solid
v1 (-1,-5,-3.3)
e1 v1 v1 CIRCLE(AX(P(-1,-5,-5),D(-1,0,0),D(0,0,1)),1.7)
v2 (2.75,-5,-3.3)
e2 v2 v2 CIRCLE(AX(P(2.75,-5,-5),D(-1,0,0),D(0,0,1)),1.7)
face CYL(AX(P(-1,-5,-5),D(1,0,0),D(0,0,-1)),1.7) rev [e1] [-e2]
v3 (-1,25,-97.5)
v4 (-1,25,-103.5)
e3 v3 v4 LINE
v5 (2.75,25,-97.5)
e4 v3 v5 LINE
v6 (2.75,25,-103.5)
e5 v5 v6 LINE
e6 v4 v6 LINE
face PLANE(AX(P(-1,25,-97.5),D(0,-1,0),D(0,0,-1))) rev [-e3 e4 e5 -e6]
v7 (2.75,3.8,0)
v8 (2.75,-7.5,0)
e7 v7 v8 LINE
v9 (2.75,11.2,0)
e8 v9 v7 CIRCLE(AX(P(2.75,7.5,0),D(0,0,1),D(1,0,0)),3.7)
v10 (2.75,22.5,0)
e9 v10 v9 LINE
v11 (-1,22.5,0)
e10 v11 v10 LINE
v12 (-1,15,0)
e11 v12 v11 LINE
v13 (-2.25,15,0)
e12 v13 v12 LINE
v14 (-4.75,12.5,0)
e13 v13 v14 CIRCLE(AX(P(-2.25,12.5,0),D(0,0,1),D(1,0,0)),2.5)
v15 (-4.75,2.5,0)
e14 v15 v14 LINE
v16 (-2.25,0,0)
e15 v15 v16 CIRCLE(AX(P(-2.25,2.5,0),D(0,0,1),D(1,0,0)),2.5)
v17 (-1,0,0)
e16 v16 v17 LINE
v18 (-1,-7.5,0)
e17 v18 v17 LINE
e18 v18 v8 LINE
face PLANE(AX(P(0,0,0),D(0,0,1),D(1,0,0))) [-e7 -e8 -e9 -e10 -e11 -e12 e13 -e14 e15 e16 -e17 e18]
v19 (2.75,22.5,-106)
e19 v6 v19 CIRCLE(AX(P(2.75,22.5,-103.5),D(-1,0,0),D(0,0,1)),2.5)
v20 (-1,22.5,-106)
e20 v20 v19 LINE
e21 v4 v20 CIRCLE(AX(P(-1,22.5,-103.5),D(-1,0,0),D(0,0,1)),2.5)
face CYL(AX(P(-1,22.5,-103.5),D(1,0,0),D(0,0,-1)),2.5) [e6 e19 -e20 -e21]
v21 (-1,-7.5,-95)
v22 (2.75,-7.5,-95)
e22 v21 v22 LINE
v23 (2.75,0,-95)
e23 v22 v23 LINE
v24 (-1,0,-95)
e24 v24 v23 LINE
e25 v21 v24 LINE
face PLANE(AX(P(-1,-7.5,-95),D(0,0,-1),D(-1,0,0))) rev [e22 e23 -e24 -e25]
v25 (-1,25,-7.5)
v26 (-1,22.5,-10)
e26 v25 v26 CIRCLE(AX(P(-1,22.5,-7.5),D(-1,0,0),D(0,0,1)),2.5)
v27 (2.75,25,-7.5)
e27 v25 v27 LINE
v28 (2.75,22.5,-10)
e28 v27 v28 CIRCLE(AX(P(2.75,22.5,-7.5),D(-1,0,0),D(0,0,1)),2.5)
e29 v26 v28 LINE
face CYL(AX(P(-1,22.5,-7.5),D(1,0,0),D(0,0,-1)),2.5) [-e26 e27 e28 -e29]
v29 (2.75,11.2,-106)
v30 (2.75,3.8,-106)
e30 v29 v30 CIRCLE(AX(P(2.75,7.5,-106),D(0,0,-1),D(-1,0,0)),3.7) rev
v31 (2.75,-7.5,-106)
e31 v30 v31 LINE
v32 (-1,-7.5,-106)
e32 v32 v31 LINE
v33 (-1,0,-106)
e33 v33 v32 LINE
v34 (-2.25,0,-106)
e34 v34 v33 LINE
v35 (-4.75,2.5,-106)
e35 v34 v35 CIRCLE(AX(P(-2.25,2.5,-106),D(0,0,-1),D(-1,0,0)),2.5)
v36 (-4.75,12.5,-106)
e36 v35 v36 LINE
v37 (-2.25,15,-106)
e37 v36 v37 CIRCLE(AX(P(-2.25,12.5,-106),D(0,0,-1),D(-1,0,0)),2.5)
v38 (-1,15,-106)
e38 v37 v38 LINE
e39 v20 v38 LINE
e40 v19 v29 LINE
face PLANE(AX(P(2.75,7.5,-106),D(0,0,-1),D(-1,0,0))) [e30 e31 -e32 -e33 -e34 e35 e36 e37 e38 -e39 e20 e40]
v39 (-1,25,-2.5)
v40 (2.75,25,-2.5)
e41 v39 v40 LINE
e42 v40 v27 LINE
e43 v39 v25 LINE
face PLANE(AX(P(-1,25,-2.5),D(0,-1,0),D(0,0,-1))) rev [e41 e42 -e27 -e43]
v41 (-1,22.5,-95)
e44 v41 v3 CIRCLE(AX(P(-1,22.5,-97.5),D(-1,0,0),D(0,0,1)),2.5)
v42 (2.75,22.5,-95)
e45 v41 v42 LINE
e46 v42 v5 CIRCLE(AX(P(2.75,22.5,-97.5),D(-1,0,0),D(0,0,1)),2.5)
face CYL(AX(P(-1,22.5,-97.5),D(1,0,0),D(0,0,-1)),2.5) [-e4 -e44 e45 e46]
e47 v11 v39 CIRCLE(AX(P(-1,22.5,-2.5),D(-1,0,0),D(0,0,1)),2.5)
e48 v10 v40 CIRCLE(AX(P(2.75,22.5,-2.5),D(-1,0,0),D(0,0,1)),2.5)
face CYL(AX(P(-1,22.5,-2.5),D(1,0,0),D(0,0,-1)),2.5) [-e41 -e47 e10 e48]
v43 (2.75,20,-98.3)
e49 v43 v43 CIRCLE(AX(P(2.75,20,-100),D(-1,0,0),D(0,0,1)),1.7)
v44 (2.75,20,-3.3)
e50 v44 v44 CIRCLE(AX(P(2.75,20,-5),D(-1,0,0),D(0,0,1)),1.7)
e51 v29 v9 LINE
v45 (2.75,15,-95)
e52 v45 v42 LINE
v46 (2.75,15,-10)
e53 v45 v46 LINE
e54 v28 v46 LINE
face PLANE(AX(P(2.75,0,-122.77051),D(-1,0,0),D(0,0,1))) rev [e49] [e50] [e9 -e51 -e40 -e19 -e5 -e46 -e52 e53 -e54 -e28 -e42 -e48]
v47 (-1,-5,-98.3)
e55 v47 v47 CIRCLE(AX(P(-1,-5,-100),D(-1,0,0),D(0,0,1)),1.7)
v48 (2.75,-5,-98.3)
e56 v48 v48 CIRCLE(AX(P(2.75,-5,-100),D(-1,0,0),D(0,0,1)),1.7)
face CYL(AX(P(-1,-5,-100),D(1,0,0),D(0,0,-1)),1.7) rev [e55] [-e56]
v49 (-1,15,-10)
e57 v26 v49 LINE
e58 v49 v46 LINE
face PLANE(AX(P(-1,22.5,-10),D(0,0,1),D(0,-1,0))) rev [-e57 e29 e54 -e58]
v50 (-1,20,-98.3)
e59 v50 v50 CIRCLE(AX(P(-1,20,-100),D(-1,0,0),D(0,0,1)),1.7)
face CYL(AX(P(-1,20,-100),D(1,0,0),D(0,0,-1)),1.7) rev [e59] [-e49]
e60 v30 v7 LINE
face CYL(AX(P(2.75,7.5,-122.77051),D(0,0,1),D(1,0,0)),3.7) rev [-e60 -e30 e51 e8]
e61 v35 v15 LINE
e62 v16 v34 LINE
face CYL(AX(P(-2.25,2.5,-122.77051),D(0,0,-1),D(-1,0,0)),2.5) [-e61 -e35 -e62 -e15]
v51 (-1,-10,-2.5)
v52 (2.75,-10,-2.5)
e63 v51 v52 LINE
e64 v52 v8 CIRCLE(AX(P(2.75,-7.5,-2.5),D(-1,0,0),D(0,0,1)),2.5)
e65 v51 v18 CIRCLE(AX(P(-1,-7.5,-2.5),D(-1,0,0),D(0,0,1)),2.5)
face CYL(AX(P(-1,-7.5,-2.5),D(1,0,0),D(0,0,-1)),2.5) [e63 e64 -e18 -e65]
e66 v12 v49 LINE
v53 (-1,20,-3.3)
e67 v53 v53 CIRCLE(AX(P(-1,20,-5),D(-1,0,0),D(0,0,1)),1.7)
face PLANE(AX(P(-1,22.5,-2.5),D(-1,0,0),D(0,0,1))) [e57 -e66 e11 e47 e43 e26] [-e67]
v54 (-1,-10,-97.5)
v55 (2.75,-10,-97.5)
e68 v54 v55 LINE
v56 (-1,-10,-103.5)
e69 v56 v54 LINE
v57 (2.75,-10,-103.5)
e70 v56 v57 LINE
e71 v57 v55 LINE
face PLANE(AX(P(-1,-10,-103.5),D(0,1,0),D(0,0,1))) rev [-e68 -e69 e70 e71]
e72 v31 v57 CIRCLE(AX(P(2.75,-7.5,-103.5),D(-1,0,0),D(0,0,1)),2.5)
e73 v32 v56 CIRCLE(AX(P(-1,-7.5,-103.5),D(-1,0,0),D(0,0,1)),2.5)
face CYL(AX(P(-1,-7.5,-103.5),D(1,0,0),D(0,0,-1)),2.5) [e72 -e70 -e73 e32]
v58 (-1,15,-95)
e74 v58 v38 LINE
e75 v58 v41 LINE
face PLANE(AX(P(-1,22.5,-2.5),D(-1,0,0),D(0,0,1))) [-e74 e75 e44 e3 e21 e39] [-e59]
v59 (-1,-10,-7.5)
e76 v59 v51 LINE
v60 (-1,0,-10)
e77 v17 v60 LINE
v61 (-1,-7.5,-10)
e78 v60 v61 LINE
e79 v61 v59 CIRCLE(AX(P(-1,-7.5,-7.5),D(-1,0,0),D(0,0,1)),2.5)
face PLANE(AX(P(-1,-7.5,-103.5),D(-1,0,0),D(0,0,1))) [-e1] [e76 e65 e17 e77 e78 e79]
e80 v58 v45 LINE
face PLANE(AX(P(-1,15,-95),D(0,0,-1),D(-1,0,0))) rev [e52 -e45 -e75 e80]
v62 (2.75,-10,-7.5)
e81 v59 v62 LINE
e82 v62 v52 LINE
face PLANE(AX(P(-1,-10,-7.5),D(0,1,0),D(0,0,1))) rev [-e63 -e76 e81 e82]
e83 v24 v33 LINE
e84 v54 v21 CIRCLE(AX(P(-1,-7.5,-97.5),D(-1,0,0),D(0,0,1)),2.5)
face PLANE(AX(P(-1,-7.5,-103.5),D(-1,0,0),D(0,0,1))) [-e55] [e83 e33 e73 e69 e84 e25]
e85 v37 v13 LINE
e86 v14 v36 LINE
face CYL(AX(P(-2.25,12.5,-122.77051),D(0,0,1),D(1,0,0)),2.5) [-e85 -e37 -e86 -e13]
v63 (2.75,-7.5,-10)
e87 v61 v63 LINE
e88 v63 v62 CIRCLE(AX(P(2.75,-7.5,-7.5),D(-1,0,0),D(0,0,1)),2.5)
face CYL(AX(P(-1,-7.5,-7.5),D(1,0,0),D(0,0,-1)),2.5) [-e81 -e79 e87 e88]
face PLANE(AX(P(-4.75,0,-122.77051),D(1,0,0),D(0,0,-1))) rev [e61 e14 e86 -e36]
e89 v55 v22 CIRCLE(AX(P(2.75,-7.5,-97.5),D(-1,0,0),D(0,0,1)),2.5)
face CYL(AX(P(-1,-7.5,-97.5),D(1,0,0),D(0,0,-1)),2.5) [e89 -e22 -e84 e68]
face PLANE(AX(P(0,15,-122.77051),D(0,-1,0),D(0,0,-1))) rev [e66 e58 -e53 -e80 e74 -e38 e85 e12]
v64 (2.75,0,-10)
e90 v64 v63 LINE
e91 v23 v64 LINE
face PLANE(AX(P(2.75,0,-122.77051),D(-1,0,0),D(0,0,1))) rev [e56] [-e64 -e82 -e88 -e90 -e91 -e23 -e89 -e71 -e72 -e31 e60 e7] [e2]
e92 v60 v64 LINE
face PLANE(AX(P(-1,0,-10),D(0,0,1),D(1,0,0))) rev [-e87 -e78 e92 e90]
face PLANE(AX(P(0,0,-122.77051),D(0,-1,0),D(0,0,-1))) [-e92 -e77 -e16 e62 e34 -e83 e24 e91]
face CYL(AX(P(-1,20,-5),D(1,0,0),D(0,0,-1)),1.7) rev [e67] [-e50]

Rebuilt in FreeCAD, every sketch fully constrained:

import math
import FreeCAD as App
import Part
import Sketcher

V = App.Vector
Q = App.Units.Quantity


def edges_at(feature, points):
    """Names of the edges that pass closest to the given points."""
    edges = feature.Shape.Edges
    near = lambda p: min(range(len(edges)), key=lambda i: edges[i].distToShape(Part.Vertex(*p))[0])
    return sorted({f"Edge{near(p) + 1}" for p in points})

doc = App.newDocument("Part")
params = doc.addObject("Spreadsheet::Sheet", "Params")
for row, (alias, value) in enumerate([
    ("sketch1_radius", "3.7 mm"),
    ("sketch1_height", "15 mm"),
    ("sketch1_width", "7.5 mm"),
    ("pad1_length", "106 mm"),
    ("sketch2_diameter", "3.4 mm"),
    ("sketch2_radius", "2.5 mm"),
    ("sketch2_height", "6 mm"),
    ("sketch2_height2", "85 mm"),
    ("sketch2_height3", "5 mm"),
    ("pad2_length", "3.75 mm"),
    ("fillet_radius", "2.5 mm"),
], start=1):
    params.set(f"A{row}", alias)
    params.set(f"B{row}", "=" + value)
    params.setAlias(f"B{row}", alias)

body = doc.addObject("PartDesign::Body", "Body")

# Sketch on XY plane
sketch1 = doc.addObject("Sketcher::SketchObject", "Sketch")
body.addObject(sketch1)
sketch1.AttachmentSupport = (doc.XY_Plane, [""])
sketch1.MapMode = "FlatFace"
sketch1.addGeometry([
    Part.LineSegment(V(2.8, 11.2, 0), V(2.8, 15, 0)),  # 0
    Part.LineSegment(V(2.8, 15, 0), V(-4.8, 15, 0)),  # 1
    Part.LineSegment(V(-4.8, 15, 0), V(-4.8, 0, 0)),  # 2
    Part.LineSegment(V(-4.8, 0, 0), V(2.8, 0, 0)),  # 3
    Part.LineSegment(V(2.8, 0, 0), V(2.8, 3.8, 0)),  # 4
    Part.ArcOfCircle(Part.Circle(V(2.8, 7.5, 0), V(0, 0, 1), 3.7), math.radians(90), math.radians(270)),  # 5
], False)
sketch1.addConstraint([
    Sketcher.Constraint("Coincident", 0, 2, 1, 1),
    Sketcher.Constraint("Coincident", 1, 2, 2, 1),
    Sketcher.Constraint("Coincident", 2, 2, 3, 1),
    Sketcher.Constraint("Coincident", 3, 2, 4, 1),
    Sketcher.Constraint("Coincident", 4, 2, 5, 2),
    Sketcher.Constraint("Coincident", 5, 1, 0, 1),
    Sketcher.Constraint("Vertical", 0),
    Sketcher.Constraint("Horizontal", 1),
    Sketcher.Constraint("Vertical", 2),
    Sketcher.Constraint("Horizontal", 3),
    Sketcher.Constraint("Vertical", 4),
    Sketcher.Constraint("PointOnObject", 2, 2, -1),
    Sketcher.Constraint("Vertical", 5, 3, 0, 2),
    Sketcher.Constraint("Vertical", 0, 2, 3, 2),
    Sketcher.Constraint("Equal", 0, 4),
    Sketcher.Constraint("Radius", 5, Q("3.7 mm")),
    Sketcher.Constraint("DistanceY", 2, 2, 2, 1, Q("15 mm")),
    Sketcher.Constraint("DistanceX", 1, 2, 1, 1, Q("7.5 mm")),
    Sketcher.Constraint("DistanceX", -1, 1, 5, 3, Q("2.75 mm")),
])
sketch1.setExpression("Constraints[15]", "Params.sketch1_radius")
sketch1.setExpression("Constraints[16]", "Params.sketch1_height")
sketch1.setExpression("Constraints[17]", "Params.sketch1_width")
pad1 = doc.addObject("PartDesign::Pad", "Pad")
body.addObject(pad1)
pad1.Profile = sketch1
pad1.setExpression("Length", "Params.pad1_length")
pad1.Reversed = True

# Sketch on YZ plane
sketch2 = doc.addObject("Sketcher::SketchObject", "Sketch001")
body.addObject(sketch2)
sketch2.AttachmentSupport = (doc.YZ_Plane, [""])
sketch2.MapMode = "FlatFace"
sketch2.AttachmentOffset = App.Placement(V(0, 0, 2.75), App.Rotation())
sketch2.addGeometry([
    Part.LineSegment(V(-10, -103.5, 0), V(-10, -97.5, 0)),  # 0
    Part.ArcOfCircle(Part.Circle(V(-7.5, -97.5, 0), V(0, 0, 1), 2.5), math.radians(90), math.radians(180)),  # 1
    Part.LineSegment(V(-7.5, -95, 0), V(0, -95, 0)),  # 2
    Part.LineSegment(V(0, -95, 0), V(0, -10, 0)),  # 3
    Part.LineSegment(V(0, -10, 0), V(-7.5, -10, 0)),  # 4
    Part.ArcOfCircle(Part.Circle(V(-7.5, -7.5, 0), V(0, 0, 1), 2.5), math.radians(180), math.radians(270)),  # 5
    Part.LineSegment(V(-10, -7.5, 0), V(-10, -2.5, 0)),  # 6
    Part.ArcOfCircle(Part.Circle(V(-7.5, -2.5, 0), V(0, 0, 1), 2.5), math.radians(90), math.radians(180)),  # 7
    Part.LineSegment(V(-7.5, 0, 0), V(3.8, 0, 0)),  # 8
    Part.LineSegment(V(3.8, 0, 0), V(3.8, -106, 0)),  # 9
    Part.LineSegment(V(3.8, -106, 0), V(-7.5, -106, 0)),  # 10
    Part.ArcOfCircle(Part.Circle(V(-7.5, -103.5, 0), V(0, 0, 1), 2.5), math.radians(180), math.radians(270)),  # 11
    Part.Circle(V(-5, -100, 0), V(0, 0, 1), 1.7),  # 12
    Part.Circle(V(-5, -5, 0), V(0, 0, 1), 1.7),  # 13
    Part.LineSegment(V(11.2, -106, 0), V(11.2, 0, 0)),  # 14
    Part.LineSegment(V(11.2, 0, 0), V(22.5, 0, 0)),  # 15
    Part.ArcOfCircle(Part.Circle(V(22.5, -2.5, 0), V(0, 0, 1), 2.5), math.radians(0), math.radians(90)),  # 16
    Part.LineSegment(V(25, -2.5, 0), V(25, -7.5, 0)),  # 17
    Part.ArcOfCircle(Part.Circle(V(22.5, -7.5, 0), V(0, 0, 1), 2.5), math.radians(-90), math.radians(0)),  # 18
    Part.LineSegment(V(22.5, -10, 0), V(15, -10, 0)),  # 19
    Part.LineSegment(V(15, -10, 0), V(15, -95, 0)),  # 20
    Part.LineSegment(V(15, -95, 0), V(22.5, -95, 0)),  # 21
    Part.ArcOfCircle(Part.Circle(V(22.5, -97.5, 0), V(0, 0, 1), 2.5), math.radians(0), math.radians(90)),  # 22
    Part.LineSegment(V(25, -97.5, 0), V(25, -103.5, 0)),  # 23
    Part.ArcOfCircle(Part.Circle(V(22.5, -103.5, 0), V(0, 0, 1), 2.5), math.radians(-90), math.radians(0)),  # 24
    Part.LineSegment(V(22.5, -106, 0), V(11.2, -106, 0)),  # 25
    Part.Circle(V(20, -100, 0), V(0, 0, 1), 1.7),  # 26
    Part.Circle(V(20, -5, 0), V(0, 0, 1), 1.7),  # 27
], False)
sketch2.addConstraint([
    Sketcher.Constraint("Tangent", 0, 2, 1, 2),
    Sketcher.Constraint("Tangent", 1, 1, 2, 1),
    Sketcher.Constraint("Coincident", 2, 2, 3, 1),
    Sketcher.Constraint("Coincident", 3, 2, 4, 1),
    Sketcher.Constraint("Tangent", 4, 2, 5, 2),
    Sketcher.Constraint("Tangent", 5, 1, 6, 1),
    Sketcher.Constraint("Tangent", 6, 2, 7, 2),
    Sketcher.Constraint("Tangent", 7, 1, 8, 1),
    Sketcher.Constraint("Coincident", 8, 2, 9, 1),
    Sketcher.Constraint("Coincident", 9, 2, 10, 1),
    Sketcher.Constraint("Tangent", 10, 2, 11, 2),
    Sketcher.Constraint("Tangent", 11, 1, 0, 1),
    Sketcher.Constraint("Coincident", 14, 2, 15, 1),
    Sketcher.Constraint("Tangent", 15, 2, 16, 2),
    Sketcher.Constraint("Tangent", 16, 1, 17, 1),
    Sketcher.Constraint("Tangent", 17, 2, 18, 2),
    Sketcher.Constraint("Tangent", 18, 1, 19, 1),
    Sketcher.Constraint("Coincident", 19, 2, 20, 1),
    Sketcher.Constraint("Coincident", 20, 2, 21, 1),
    Sketcher.Constraint("Tangent", 21, 2, 22, 2),
    Sketcher.Constraint("Tangent", 22, 1, 23, 1),
    Sketcher.Constraint("Tangent", 23, 2, 24, 2),
    Sketcher.Constraint("Tangent", 24, 1, 25, 1),
    Sketcher.Constraint("Coincident", 25, 2, 14, 1),
    Sketcher.Constraint("Vertical", 0),
    Sketcher.Constraint("Horizontal", 2),
    Sketcher.Constraint("Vertical", 3),
    Sketcher.Constraint("Horizontal", 4),
    Sketcher.Constraint("Vertical", 6),
    Sketcher.Constraint("Horizontal", 8),
    Sketcher.Constraint("Vertical", 9),
    Sketcher.Constraint("Horizontal", 10),
    Sketcher.Constraint("Vertical", 14),
    Sketcher.Constraint("Horizontal", 15),
    Sketcher.Constraint("Vertical", 17),
    Sketcher.Constraint("Horizontal", 19),
    Sketcher.Constraint("Vertical", 20),
    Sketcher.Constraint("Horizontal", 21),
    Sketcher.Constraint("Vertical", 23),
    Sketcher.Constraint("Horizontal", 25),
    Sketcher.Constraint("Equal", 1, 5),
    Sketcher.Constraint("Equal", 5, 7),
    Sketcher.Constraint("Equal", 7, 11),
    Sketcher.Constraint("Equal", 12, 13),
    Sketcher.Constraint("Equal", 11, 16),
    Sketcher.Constraint("Equal", 16, 18),
    Sketcher.Constraint("Equal", 18, 22),
    Sketcher.Constraint("Equal", 22, 24),
    Sketcher.Constraint("Equal", 13, 26),
    Sketcher.Constraint("Equal", 26, 27),
    Sketcher.Constraint("PointOnObject", 2, 2, -2),
    Sketcher.Constraint("PointOnObject", 7, 1, -1),
    Sketcher.Constraint("PointOnObject", 14, 2, -1),
    Sketcher.Constraint("Horizontal", 5, 3, 18, 3),
    Sketcher.Constraint("Horizontal", 1, 3, 22, 3),
    Sketcher.Constraint("Horizontal", 11, 3, 24, 3),
    Sketcher.Constraint("Horizontal", 12, 3, 26, 3),
    Sketcher.Constraint("Horizontal", 13, 3, 27, 3),
    Sketcher.Constraint("Vertical", 1, 3, 5, 3),
    Sketcher.Constraint("Vertical", 12, 3, 13, 3),
    Sketcher.Constraint("Vertical", 18, 3, 22, 3),
    Sketcher.Constraint("Vertical", 26, 3, 27, 3),
    Sketcher.Constraint("Equal", 10, 15),
    Sketcher.Constraint("Equal", 4, 19),
    Sketcher.Constraint("Diameter", 12, Q("3.4 mm")),
    Sketcher.Constraint("Radius", 1, Q("2.5 mm")),
    Sketcher.Constraint("DistanceY", 0, 1, 0, 2, Q("6 mm")),
    Sketcher.Constraint("DistanceY", 3, 1, 3, 2, Q("85 mm")),
    Sketcher.Constraint("DistanceY", 6, 1, 6, 2, Q("5 mm")),
    Sketcher.Constraint("DistanceX", 2, 1, 2, 2, Q("7.5 mm")),
    Sketcher.Constraint("DistanceX", 8, 1, 8, 2, Q("11.3 mm")),
    Sketcher.Constraint("DistanceX", 12, 3, -1, 1, Q("5 mm")),
    Sketcher.Constraint("DistanceY", 12, 3, -1, 1, Q("100 mm")),
    Sketcher.Constraint("DistanceY", 13, 3, -1, 1, Q("5 mm")),
    Sketcher.Constraint("DistanceX", -1, 1, 26, 3, Q("20 mm")),
    Sketcher.Constraint("DistanceX", -1, 1, 16, 1, Q("25 mm")),
])
sketch2.setExpression("Constraints[64]", "Params.sketch2_diameter")
sketch2.setExpression("Constraints[65]", "Params.sketch2_radius")
sketch2.setExpression("Constraints[66]", "Params.sketch2_height")
sketch2.setExpression("Constraints[67]", "Params.sketch2_height2")
sketch2.setExpression("Constraints[68]", "Params.sketch2_height3")
pad2 = doc.addObject("PartDesign::Pad", "Pad001")
body.addObject(pad2)
pad2.Profile = sketch2
pad2.setExpression("Length", "Params.pad2_length")
pad2.Reversed = True
doc.recompute()

fillet = doc.addObject("PartDesign::Fillet", "Fillet")
body.addObject(fillet)
fillet.Base = (pad2, edges_at(pad2, [(-4.75, 0, -53), (-4.75, 15, -53)]))
fillet.setExpression("Radius", "Params.fillet_radius")

doc.recompute()
